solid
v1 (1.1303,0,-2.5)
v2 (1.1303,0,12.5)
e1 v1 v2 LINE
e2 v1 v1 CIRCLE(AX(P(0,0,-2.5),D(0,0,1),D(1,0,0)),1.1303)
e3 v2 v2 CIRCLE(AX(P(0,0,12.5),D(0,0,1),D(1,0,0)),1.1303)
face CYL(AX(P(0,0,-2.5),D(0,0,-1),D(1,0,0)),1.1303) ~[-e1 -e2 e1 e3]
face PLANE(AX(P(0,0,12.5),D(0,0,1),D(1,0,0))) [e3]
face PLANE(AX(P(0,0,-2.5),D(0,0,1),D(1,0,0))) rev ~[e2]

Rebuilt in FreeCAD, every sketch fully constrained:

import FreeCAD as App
import Part
import Sketcher
from FreeCAD import Vector
Q = App.Units.Quantity

doc = App.newDocument("Part")
body = doc.addObject("PartDesign::Body", "Body")

sketch1 = body.newObject("Sketcher::SketchObject", "Sketch")
sketch1.AttachmentSupport = (doc.getObject("XY_Plane"), [""])
sketch1.MapMode = "FlatFace"
sketch1.AttachmentOffset = App.Placement(Vector(0, 0, -2.5), App.Rotation())
sketch1.addGeometry(Part.Circle(Vector(0, 0, 0), Vector(0, 0, 1), 1.1), False)
sketch1.addConstraint([
    Sketcher.Constraint("Coincident", 0, 3, -1, 1),
    Sketcher.Constraint("Diameter", 0, Q("2.2606 mm")),
])
pad1 = body.newObject("PartDesign::Pad", "Pad")
pad1.Profile = sketch1
pad1.Length = 15

doc.recompute()
